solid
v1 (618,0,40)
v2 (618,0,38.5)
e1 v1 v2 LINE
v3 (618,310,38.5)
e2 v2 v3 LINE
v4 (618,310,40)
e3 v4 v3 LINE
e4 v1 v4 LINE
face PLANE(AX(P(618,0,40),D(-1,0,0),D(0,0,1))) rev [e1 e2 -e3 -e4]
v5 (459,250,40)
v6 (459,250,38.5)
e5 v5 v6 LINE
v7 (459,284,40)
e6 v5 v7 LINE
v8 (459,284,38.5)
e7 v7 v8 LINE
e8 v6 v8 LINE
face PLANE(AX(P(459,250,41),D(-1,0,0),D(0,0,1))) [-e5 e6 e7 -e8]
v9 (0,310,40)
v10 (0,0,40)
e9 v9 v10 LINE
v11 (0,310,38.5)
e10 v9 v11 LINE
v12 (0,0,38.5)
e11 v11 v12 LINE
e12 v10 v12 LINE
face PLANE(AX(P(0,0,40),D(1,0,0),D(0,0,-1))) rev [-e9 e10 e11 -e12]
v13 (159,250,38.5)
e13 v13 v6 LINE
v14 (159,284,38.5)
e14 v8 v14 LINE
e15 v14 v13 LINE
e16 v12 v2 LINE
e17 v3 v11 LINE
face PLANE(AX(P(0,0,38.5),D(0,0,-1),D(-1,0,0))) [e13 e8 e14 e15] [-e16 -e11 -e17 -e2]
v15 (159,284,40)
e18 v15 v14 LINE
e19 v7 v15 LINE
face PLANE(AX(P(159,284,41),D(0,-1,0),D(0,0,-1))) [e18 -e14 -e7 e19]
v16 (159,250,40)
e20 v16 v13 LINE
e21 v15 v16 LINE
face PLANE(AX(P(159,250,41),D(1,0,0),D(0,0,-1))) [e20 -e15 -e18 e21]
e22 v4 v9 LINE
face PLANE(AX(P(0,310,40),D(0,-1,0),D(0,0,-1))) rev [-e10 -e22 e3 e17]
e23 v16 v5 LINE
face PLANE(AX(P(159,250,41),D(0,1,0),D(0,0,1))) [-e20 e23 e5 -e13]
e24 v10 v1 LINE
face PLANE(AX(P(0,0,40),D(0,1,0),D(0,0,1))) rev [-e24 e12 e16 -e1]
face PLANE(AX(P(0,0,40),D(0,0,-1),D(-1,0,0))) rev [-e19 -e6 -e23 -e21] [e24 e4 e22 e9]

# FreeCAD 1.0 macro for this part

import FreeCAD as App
import Part
import Sketcher

V = App.Vector

doc = App.newDocument("Part")
body = doc.addObject("PartDesign::Body", "Body")

# Sketch on XY plane
sketch1 = body.newObject("Sketcher::SketchObject", "Sketch")
sketch1.AttachmentSupport = (doc.getObject("XY_Plane"), [""])
sketch1.MapMode = "FlatFace"
sketch1.AttachmentOffset = App.Placement(V(0, 0, 38.5), App.Rotation())
sketch1.addGeometry(Part.LineSegment(V(0, 310, 0), V(0, 0, 0)), False)
sketch1.addGeometry(Part.LineSegment(V(0, 0, 0), V(618, 0, 0)), False)
sketch1.addGeometry(Part.LineSegment(V(618, 0, 0), V(618, 310, 0)), False)
sketch1.addGeometry(Part.LineSegment(V(618, 310, 0), V(0, 310, 0)), False)
sketch1.addConstraint(Sketcher.Constraint("Coincident", 0, 2, 1, 1))
sketch1.addConstraint(Sketcher.Constraint("Coincident", 1, 2, 2, 1))
sketch1.addConstraint(Sketcher.Constraint("Coincident", 2, 2, 3, 1))
sketch1.addConstraint(Sketcher.Constraint("Coincident", 3, 2, 0, 1))
sketch1.addConstraint(Sketcher.Constraint("Vertical", 0))
sketch1.addConstraint(Sketcher.Constraint("Horizontal", 1))
sketch1.addConstraint(Sketcher.Constraint("Vertical", 2))
sketch1.addConstraint(Sketcher.Constraint("Horizontal", 3))
sketch1.addConstraint(Sketcher.Constraint("Coincident", 0, 2, -1, 1))
sketch1.addConstraint(Sketcher.Constraint("DistanceX", 1, 1, 1, 2, 618.0))
sketch1.addConstraint(Sketcher.Constraint("DistanceY", 0, 2, 0, 1, 310.0))
pad1 = body.newObject("PartDesign::Pad", "Pad")
pad1.Profile = sketch1
pad1.Length = 1.5

# Sketch on XY plane
sketch2 = body.newObject("Sketcher::SketchObject", "Sketch001")
sketch2.AttachmentSupport = (doc.getObject("XY_Plane"), [""])
sketch2.MapMode = "FlatFace"
sketch2.AttachmentOffset = App.Placement(V(0, 0, 27), App.Rotation())
sketch2.addGeometry(Part.LineSegment(V(159, 284, 0), V(159, 250, 0)), False)
sketch2.addGeometry(Part.LineSegment(V(159, 250, 0), V(459, 250, 0)), False)
sketch2.addGeometry(Part.LineSegment(V(459, 250, 0), V(459, 284, 0)), False)
sketch2.addGeometry(Part.LineSegment(V(459, 284, 0), V(159, 284, 0)), False)
sketch2.addConstraint(Sketcher.Constraint("Coincident", 0, 2, 1, 1))
sketch2.addConstraint(Sketcher.Constraint("Coincident", 1, 2, 2, 1))
sketch2.addConstraint(Sketcher.Constraint("Coincident", 2, 2, 3, 1))
sketch2.addConstraint(Sketcher.Constraint("Coincident", 3, 2, 0, 1))
sketch2.addConstraint(Sketcher.Constraint("Vertical", 0))
sketch2.addConstraint(Sketcher.Constraint("Horizontal", 1))
sketch2.addConstraint(Sketcher.Constraint("Vertical", 2))
sketch2.addConstraint(Sketcher.Constraint("Horizontal", 3))
sketch2.addConstraint(Sketcher.Constraint("DistanceX", 1, 1, 1, 2, 300.0))
sketch2.addConstraint(Sketcher.Constraint("DistanceY", 0, 2, 0, 1, 34.0))
sketch2.addConstraint(Sketcher.Constraint("DistanceX", -1, 1, 0, 2, 159.0))
sketch2.addConstraint(Sketcher.Constraint("DistanceY", -1, 1, 0, 2, 250.0))
pocket1 = body.newObject("PartDesign::Pocket", "Pocket")
pocket1.Profile = sketch2
pocket1.Length = 14
pocket1.Reversed = True

doc.recompute()
